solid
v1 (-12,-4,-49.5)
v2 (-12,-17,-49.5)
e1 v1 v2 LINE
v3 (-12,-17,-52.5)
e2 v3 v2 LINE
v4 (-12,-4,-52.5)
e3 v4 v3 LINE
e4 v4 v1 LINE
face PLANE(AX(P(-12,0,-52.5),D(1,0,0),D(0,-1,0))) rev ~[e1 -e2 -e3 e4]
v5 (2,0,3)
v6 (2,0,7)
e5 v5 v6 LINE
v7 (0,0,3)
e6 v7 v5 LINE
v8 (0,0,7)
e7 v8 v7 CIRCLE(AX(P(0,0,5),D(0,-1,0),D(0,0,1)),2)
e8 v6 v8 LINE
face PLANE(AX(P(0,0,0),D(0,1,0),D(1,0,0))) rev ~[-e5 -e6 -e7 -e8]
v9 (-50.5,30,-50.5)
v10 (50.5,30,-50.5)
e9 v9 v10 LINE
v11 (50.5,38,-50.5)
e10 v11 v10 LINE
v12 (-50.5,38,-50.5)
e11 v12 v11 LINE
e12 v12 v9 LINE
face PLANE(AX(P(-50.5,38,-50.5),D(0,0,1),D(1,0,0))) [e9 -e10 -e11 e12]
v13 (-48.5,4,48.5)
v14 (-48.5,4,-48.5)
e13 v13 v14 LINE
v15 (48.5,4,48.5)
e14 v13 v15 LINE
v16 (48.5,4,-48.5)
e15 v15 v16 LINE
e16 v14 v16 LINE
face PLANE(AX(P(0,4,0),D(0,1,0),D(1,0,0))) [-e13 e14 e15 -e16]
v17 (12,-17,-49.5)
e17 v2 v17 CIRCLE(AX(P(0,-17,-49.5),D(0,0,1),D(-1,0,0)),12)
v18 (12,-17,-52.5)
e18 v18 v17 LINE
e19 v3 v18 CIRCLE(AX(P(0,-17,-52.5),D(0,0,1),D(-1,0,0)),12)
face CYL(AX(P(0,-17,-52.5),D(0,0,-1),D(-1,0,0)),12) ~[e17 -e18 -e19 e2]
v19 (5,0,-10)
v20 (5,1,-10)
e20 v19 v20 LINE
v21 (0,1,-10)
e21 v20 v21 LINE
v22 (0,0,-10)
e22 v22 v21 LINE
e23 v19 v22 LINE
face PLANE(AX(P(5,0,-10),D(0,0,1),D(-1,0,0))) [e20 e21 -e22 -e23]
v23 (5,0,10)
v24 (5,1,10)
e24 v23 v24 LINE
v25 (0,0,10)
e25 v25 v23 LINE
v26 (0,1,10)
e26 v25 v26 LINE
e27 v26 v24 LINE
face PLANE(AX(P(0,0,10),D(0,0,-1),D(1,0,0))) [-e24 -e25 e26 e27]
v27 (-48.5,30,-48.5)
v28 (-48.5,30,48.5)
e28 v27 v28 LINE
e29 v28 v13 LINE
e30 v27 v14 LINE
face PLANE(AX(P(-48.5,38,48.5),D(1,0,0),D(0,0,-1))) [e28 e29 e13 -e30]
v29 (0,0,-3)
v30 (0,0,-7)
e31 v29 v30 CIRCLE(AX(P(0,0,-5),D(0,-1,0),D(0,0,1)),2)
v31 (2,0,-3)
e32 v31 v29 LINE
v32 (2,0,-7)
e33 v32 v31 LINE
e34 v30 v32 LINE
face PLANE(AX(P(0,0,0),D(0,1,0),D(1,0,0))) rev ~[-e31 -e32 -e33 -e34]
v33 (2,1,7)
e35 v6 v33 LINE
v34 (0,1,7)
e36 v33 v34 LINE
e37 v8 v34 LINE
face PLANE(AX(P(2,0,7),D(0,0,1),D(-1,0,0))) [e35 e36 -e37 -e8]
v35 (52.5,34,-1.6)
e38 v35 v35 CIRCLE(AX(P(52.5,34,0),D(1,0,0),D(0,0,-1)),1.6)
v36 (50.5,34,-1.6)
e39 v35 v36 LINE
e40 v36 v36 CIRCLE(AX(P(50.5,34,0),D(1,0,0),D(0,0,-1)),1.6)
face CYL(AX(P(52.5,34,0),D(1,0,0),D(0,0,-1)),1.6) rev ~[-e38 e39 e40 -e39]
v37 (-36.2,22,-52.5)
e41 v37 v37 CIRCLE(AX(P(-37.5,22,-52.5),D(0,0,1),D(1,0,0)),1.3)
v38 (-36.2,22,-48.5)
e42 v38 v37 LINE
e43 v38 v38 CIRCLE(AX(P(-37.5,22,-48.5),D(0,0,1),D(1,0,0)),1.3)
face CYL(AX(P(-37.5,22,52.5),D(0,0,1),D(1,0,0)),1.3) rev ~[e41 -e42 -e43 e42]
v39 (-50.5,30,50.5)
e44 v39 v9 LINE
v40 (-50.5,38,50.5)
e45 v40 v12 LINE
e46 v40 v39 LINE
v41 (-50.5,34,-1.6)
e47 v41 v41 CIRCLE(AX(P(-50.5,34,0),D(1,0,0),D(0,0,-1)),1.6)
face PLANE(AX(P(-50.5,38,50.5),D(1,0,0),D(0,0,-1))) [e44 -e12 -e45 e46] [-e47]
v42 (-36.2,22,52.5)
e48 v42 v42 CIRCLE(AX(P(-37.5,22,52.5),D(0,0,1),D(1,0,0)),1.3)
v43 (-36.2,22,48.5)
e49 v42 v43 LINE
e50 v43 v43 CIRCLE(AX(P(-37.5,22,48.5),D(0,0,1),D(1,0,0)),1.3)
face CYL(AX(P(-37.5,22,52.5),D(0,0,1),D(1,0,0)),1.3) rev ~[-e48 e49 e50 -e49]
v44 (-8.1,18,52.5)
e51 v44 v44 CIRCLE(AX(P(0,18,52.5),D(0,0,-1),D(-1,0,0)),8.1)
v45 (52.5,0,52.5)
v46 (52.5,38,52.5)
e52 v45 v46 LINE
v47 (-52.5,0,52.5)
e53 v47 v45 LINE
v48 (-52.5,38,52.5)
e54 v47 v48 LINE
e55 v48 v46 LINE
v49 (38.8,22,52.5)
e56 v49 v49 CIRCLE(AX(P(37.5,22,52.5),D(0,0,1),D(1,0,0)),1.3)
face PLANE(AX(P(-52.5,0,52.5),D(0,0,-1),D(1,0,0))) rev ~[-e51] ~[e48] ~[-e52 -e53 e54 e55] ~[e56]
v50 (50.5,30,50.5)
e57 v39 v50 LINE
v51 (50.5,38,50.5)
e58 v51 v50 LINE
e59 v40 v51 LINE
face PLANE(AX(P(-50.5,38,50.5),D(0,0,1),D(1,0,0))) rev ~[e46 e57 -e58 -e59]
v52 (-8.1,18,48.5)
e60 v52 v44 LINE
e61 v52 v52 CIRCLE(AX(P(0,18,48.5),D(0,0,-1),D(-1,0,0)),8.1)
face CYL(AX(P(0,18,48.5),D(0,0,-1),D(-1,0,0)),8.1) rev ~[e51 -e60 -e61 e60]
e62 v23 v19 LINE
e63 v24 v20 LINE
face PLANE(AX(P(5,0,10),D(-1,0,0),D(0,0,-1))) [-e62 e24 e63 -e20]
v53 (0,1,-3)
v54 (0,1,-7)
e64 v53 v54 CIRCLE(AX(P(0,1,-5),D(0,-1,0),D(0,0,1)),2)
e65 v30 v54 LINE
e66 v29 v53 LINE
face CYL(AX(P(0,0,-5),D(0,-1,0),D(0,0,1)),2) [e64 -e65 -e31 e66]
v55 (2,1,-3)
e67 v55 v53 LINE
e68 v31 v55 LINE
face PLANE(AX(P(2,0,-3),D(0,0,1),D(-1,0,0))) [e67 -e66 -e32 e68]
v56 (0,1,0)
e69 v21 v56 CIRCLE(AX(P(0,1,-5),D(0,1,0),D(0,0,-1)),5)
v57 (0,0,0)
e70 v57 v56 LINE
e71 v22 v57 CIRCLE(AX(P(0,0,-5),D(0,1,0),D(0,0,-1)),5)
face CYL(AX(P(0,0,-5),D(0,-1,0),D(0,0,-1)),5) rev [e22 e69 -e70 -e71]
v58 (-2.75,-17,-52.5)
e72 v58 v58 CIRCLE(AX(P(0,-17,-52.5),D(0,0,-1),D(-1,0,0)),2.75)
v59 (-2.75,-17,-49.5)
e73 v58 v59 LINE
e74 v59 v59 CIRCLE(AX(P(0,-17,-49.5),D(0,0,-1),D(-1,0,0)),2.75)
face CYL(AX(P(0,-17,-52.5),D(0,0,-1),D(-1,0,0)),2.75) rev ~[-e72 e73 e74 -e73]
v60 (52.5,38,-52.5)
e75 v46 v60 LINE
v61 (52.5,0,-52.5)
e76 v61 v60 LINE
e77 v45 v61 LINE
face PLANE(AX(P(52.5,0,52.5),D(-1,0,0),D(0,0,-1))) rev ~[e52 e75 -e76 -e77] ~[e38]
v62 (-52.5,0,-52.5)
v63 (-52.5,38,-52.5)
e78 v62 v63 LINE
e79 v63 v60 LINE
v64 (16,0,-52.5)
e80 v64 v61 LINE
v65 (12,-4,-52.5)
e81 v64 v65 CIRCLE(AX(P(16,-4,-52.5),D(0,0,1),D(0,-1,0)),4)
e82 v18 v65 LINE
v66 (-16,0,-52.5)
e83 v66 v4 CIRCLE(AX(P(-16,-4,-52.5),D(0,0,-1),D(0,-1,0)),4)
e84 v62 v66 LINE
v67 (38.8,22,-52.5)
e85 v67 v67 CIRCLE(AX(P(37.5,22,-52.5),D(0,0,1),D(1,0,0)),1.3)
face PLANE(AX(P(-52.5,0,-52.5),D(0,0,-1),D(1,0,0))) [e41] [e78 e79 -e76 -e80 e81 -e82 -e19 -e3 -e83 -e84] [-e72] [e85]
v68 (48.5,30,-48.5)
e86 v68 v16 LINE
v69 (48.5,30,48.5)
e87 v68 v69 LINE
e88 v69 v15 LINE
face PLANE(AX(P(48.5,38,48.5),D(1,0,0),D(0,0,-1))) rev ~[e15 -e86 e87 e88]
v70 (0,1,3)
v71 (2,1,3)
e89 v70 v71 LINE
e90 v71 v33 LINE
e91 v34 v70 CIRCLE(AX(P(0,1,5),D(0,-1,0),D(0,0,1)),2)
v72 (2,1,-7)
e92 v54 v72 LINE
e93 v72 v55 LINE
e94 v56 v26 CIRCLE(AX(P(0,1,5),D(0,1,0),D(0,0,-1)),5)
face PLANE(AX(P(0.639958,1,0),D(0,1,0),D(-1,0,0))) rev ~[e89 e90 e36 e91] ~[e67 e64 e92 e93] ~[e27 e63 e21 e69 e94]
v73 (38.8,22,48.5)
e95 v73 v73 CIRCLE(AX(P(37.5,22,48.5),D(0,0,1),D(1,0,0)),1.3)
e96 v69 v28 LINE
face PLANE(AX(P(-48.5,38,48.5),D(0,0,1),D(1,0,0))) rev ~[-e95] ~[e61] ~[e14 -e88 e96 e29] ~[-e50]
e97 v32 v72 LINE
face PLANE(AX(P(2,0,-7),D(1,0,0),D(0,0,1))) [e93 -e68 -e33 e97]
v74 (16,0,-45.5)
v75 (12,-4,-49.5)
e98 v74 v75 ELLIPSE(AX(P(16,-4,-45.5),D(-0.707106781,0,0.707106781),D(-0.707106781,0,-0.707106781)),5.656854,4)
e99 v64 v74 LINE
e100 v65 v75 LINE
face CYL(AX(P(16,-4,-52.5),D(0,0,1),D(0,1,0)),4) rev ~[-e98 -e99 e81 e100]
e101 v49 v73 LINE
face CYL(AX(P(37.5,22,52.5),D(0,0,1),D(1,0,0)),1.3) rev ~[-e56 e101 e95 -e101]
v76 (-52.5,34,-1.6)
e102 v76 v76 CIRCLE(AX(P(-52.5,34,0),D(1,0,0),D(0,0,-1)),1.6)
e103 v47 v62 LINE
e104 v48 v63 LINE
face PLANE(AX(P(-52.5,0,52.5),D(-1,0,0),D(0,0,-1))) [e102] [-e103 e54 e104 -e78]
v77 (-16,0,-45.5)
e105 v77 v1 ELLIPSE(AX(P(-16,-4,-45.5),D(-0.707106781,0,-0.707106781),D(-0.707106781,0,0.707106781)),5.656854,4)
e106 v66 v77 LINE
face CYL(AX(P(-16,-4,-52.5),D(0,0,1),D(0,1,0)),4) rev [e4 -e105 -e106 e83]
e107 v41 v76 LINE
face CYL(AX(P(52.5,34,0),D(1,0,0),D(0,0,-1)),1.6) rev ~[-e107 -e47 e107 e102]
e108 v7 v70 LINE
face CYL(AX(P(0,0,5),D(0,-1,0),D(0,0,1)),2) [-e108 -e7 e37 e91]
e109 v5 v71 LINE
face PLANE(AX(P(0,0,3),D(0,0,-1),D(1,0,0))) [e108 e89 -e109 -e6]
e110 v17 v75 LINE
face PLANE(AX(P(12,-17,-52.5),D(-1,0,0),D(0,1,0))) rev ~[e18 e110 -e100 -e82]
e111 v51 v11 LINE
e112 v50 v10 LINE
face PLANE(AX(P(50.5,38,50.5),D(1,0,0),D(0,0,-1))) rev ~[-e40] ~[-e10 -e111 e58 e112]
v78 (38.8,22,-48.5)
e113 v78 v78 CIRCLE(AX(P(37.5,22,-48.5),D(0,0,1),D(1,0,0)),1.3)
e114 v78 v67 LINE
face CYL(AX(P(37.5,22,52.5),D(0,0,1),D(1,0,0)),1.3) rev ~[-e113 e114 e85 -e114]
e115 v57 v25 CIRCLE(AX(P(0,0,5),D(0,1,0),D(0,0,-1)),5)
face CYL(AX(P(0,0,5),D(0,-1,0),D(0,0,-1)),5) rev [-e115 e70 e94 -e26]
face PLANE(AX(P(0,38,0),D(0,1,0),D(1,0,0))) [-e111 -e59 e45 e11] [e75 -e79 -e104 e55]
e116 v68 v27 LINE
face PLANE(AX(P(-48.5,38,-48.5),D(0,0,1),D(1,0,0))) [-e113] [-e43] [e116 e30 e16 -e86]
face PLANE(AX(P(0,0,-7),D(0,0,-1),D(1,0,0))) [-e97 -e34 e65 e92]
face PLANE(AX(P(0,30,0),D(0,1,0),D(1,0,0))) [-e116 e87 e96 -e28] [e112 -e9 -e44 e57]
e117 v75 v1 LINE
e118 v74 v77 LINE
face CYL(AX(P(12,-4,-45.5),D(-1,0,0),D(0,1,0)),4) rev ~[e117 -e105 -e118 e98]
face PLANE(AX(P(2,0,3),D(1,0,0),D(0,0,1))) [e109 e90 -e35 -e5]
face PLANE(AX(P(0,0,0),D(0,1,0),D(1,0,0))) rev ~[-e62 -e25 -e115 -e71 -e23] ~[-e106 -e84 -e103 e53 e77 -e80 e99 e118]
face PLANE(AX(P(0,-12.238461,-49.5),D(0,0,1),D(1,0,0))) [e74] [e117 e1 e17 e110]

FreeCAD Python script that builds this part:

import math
import FreeCAD as App
import Part
import Sketcher
from FreeCAD import Vector
Q = App.Units.Quantity


def edges_at(feature, points):
    """Names of the edges that pass closest to the given points."""
    edges = feature.Shape.Edges
    near = lambda p: min(range(len(edges)), key=lambda i: edges[i].distToShape(Part.Vertex(*p))[0])
    return sorted({f"Edge{near(p) + 1}" for p in points})


def add_polygon(sketch, points):
    """Adds a closed chain of lines whose ends are joined by coincident constraints."""
    first, n = sketch.GeometryCount, len(points)
    for a, b in zip(points, points[1:] + points[:1]):
        sketch.addGeometry(Part.LineSegment(App.Vector(*a, 0), App.Vector(*b, 0)), False)
    for i in range(n):
        sketch.addConstraint(Sketcher.Constraint("Coincident", first + i, 2, first + (i + 1) % n, 1))

doc = App.newDocument("Part")
body = doc.addObject("PartDesign::Body", "Body")

# Sketch on XZ plane
sketch1 = body.newObject("Sketcher::SketchObject", "Sketch")
sketch1.AttachmentSupport = (doc.getObject("XZ_Plane"), [""])
sketch1.MapMode = "FlatFace"
add_polygon(sketch1, [(-52.5, -52.5), (-52.5, 52.5), (52.5, 52.5), (52.5, -52.5)])  # lines 0-3
sketch1.addConstraint([
    Sketcher.Constraint("Vertical", 0),
    Sketcher.Constraint("Horizontal", 1),
    Sketcher.Constraint("Vertical", 2),
    Sketcher.Constraint("Horizontal", 3),
    Sketcher.Constraint("Symmetric", 0, 2, 2, 2, -1, 1),
    Sketcher.Constraint("Equal", 3, 0),
    Sketcher.Constraint("DistanceX", 1, 1, 1, 2, Q("105 mm")),
])
pad1 = body.newObject("PartDesign::Pad", "Pad")
pad1.Profile = sketch1
pad1.Length = 38
pad1.Reversed = True

# Sketch on XZ plane
sketch2 = body.newObject("Sketcher::SketchObject", "Sketch001")
sketch2.AttachmentSupport = (doc.getObject("XZ_Plane"), [""])
sketch2.MapMode = "FlatFace"
sketch2.AttachmentOffset = App.Placement(Vector(0, 0, -38), App.Rotation())
add_polygon(sketch2, [(-48.5, -48.5), (-48.5, 48.5), (48.5, 48.5), (48.5, -48.5)])  # lines 0-3
sketch2.addConstraint([
    Sketcher.Constraint("Vertical", 0),
    Sketcher.Constraint("Horizontal", 1),
    Sketcher.Constraint("Vertical", 2),
    Sketcher.Constraint("Horizontal", 3),
    Sketcher.Constraint("Symmetric", 0, 2, 2, 2, -1, 1),
    Sketcher.Constraint("Equal", 3, 0),
    Sketcher.Constraint("DistanceX", 1, 1, 1, 2, Q("97 mm")),
])
pocket1 = body.newObject("PartDesign::Pocket", "Pocket")
pocket1.Profile = sketch2
pocket1.Length = 34
pocket1.Reversed = True

# Sketch on XZ plane
sketch3 = body.newObject("Sketcher::SketchObject", "Sketch002")
sketch3.AttachmentSupport = (doc.getObject("XZ_Plane"), [""])
sketch3.MapMode = "FlatFace"
sketch3.AttachmentOffset = App.Placement(Vector(0, 0, -38), App.Rotation())
add_polygon(sketch3, [(-50.5, -50.5), (-50.5, 50.5), (50.5, 50.5), (50.5, -50.5)])  # lines 0-3
sketch3.addConstraint([
    Sketcher.Constraint("Vertical", 0),
    Sketcher.Constraint("Horizontal", 1),
    Sketcher.Constraint("Vertical", 2),
    Sketcher.Constraint("Horizontal", 3),
    Sketcher.Constraint("Symmetric", 0, 2, 2, 2, -1, 1),
    Sketcher.Constraint("Equal", 3, 0),
    Sketcher.Constraint("DistanceX", 1, 1, 1, 2, Q("101 mm")),
])
pocket2 = body.newObject("PartDesign::Pocket", "Pocket001")
pocket2.Profile = sketch3
pocket2.Length = 8
pocket2.Reversed = True

# Sketch on YZ plane
sketch4 = body.newObject("Sketcher::SketchObject", "Sketch003")
sketch4.AttachmentSupport = (doc.getObject("YZ_Plane"), [""])
sketch4.MapMode = "FlatFace"
sketch4.AttachmentOffset = App.Placement(Vector(0, 0, 52.5), App.Rotation())
sketch4.addGeometry(Part.Circle(Vector(34, 0, 0), Vector(0, 0, 1), 1.6), False)
sketch4.addConstraint([
    Sketcher.Constraint("PointOnObject", 0, 3, -1),
    Sketcher.Constraint("Diameter", 0, Q("3.2 mm")),
    Sketcher.Constraint("DistanceX", -1, 1, 0, 3, Q("34 mm")),
])
pocket3 = body.newObject("PartDesign::Pocket", "Pocket002")
pocket3.Profile = sketch4
pocket3.Type = "ThroughAll"

# Sketch on XY plane
sketch5 = body.newObject("Sketcher::SketchObject", "Sketch004")
sketch5.AttachmentSupport = (doc.getObject("XY_Plane"), [""])
sketch5.MapMode = "FlatFace"
sketch5.AttachmentOffset = App.Placement(Vector(0, 0, -52.5), App.Rotation())
sketch5.addGeometry([
    Part.LineSegment(Vector(-12, 0, 0), Vector(12, 0, 0)),  # 0
    Part.LineSegment(Vector(12, 0, 0), Vector(12, -17, 0)),  # 1
    Part.ArcOfCircle(Part.Circle(Vector(0, -17, 0), Vector(0, 0, 1), 12), math.radians(180), math.radians(360)),  # 2
    Part.LineSegment(Vector(-12, -17, 0), Vector(-12, 0, 0)),  # 3
    Part.Circle(Vector(0, -17, 0), Vector(0, 0, 1), 2.75),  # 4
], False)
sketch5.addConstraint([
    Sketcher.Constraint("Coincident", 0, 2, 1, 1),
    Sketcher.Constraint("Tangent", 1, 2, 2, 2),
    Sketcher.Constraint("Tangent", 2, 1, 3, 1),
    Sketcher.Constraint("Coincident", 3, 2, 0, 1),
    Sketcher.Constraint("Horizontal", 0),
    Sketcher.Constraint("Vertical", 1),
    Sketcher.Constraint("Vertical", 3),
    Sketcher.Constraint("Coincident", 4, 3, 2, 3),
    Sketcher.Constraint("Symmetric", 0, 2, 3, 2, -1, 1),
    Sketcher.Constraint("Radius", 2, Q("12 mm")),
    Sketcher.Constraint("Diameter", 4, Q("5.5 mm")),
    Sketcher.Constraint("DistanceY", 1, 2, 1, 1, Q("17 mm")),
])
pad2 = body.newObject("PartDesign::Pad", "Pad001")
pad2.Profile = sketch5
pad2.Length = 3
doc.recompute()

fillet = body.newObject("PartDesign::Fillet", "Fillet")
fillet.Base = (pad2, edges_at(pad2, [(0, 0, -49.5), (12, 0, -51), (-12, 0, -51)]))
fillet.Radius = 4

# Sketch on XY plane
sketch6 = body.newObject("Sketcher::SketchObject", "Sketch005")
sketch6.AttachmentSupport = (doc.getObject("XY_Plane"), [""])
sketch6.MapMode = "FlatFace"
sketch6.AttachmentOffset = App.Placement(Vector(0, 0, 48.5), App.Rotation())
sketch6.addGeometry(Part.Circle(Vector(0, 18, 0), Vector(0, 0, 1), 8.1), False)
sketch6.addConstraint([
    Sketcher.Constraint("PointOnObject", 0, 3, -2),
    Sketcher.Constraint("Diameter", 0, Q("16.2 mm")),
    Sketcher.Constraint("DistanceY", -1, 1, 0, 3, Q("18 mm")),
])
pocket4 = body.newObject("PartDesign::Pocket", "Pocket003")
pocket4.Profile = sketch6
pocket4.Type = "UpToFirst"
pocket4.Reversed = True

# Sketch on XZ plane
sketch7 = body.newObject("Sketcher::SketchObject", "Sketch006")
sketch7.AttachmentSupport = (doc.getObject("XZ_Plane"), [""])
sketch7.MapMode = "FlatFace"
sketch7.addGeometry([
    Part.LineSegment(Vector(0, -10, 0), Vector(5, -10, 0)),  # 0
    Part.LineSegment(Vector(5, -10, 0), Vector(5, 10, 0)),  # 1
    Part.LineSegment(Vector(5, 10, 0), Vector(0, 10, 0)),  # 2
    Part.ArcOfCircle(Part.Circle(Vector(0, 5, 0), Vector(0, 0, 1), 5), math.radians(90), math.radians(270)),  # 3
    Part.ArcOfCircle(Part.Circle(Vector(0, -5, 0), Vector(0, 0, 1), 5), math.radians(90), math.radians(270)),  # 4
    Part.ArcOfCircle(Part.Circle(Vector(0, -5, 0), Vector(0, 0, 1), 2), math.radians(90), math.radians(270)),  # 5
    Part.LineSegment(Vector(0, -3, 0), Vector(2, -3, 0)),  # 6
    Part.LineSegment(Vector(2, -3, 0), Vector(2, -7, 0)),  # 7
    Part.LineSegment(Vector(2, -7, 0), Vector(0, -7, 0)),  # 8
    Part.ArcOfCircle(Part.Circle(Vector(0, 5, 0), Vector(0, 0, 1), 2), math.radians(90), math.radians(270)),  # 9
    Part.LineSegment(Vector(0, 7, 0), Vector(2, 7, 0)),  # 10
    Part.LineSegment(Vector(2, 7, 0), Vector(2, 3, 0)),  # 11
    Part.LineSegment(Vector(2, 3, 0), Vector(0, 3, 0)),  # 12
], False)
sketch7.addConstraint([
    Sketcher.Constraint("Coincident", 0, 2, 1, 1),
    Sketcher.Constraint("Coincident", 1, 2, 2, 1),
    Sketcher.Constraint("Tangent", 2, 2, 3, 1),
    Sketcher.Constraint("Tangent", 3, 2, 4, 1),
    Sketcher.Constraint("Tangent", 4, 2, 0, 1),
    Sketcher.Constraint("Tangent", 5, 1, 6, 1),
    Sketcher.Constraint("Coincident", 6, 2, 7, 1),
    Sketcher.Constraint("Coincident", 7, 2, 8, 1),
    Sketcher.Constraint("Tangent", 8, 2, 5, 2),
    Sketcher.Constraint("Tangent", 9, 1, 10, 1),
    Sketcher.Constraint("Coincident", 10, 2, 11, 1),
    Sketcher.Constraint("Coincident", 11, 2, 12, 1),
    Sketcher.Constraint("Tangent", 12, 2, 9, 2),
    Sketcher.Constraint("Horizontal", 0),
    Sketcher.Constraint("Vertical", 1),
    Sketcher.Constraint("Horizontal", 2),
    Sketcher.Constraint("Horizontal", 6),
    Sketcher.Constraint("Vertical", 7),
    Sketcher.Constraint("Horizontal", 8),
    Sketcher.Constraint("Horizontal", 10),
    Sketcher.Constraint("Vertical", 11),
    Sketcher.Constraint("Horizontal", 12),
    Sketcher.Constraint("Coincident", 3, 2, -1, 1),
    Sketcher.Constraint("Coincident", 5, 3, 4, 3),
    Sketcher.Constraint("Coincident", 9, 3, 3, 3),
    Sketcher.Constraint("Equal", 3, 4),
    Sketcher.Constraint("Equal", 5, 9),
    Sketcher.Constraint("PointOnObject", 3, 3, -2),
    Sketcher.Constraint("Vertical", 7, 2, 10, 2),
    Sketcher.Constraint("Radius", 3, Q("5 mm")),
    Sketcher.Constraint("Radius", 5, Q("2 mm")),
    Sketcher.Constraint("DistanceX", 0, 1, 0, 2, Q("5 mm")),
    Sketcher.Constraint("DistanceX", 6, 1, 6, 2, Q("2 mm")),
])
pocket5 = body.newObject("PartDesign::Pocket", "Pocket004")
pocket5.Profile = sketch7
pocket5.Length = 1

# Sketch on XY plane
sketch8 = body.newObject("Sketcher::SketchObject", "Sketch007")
sketch8.AttachmentSupport = (doc.getObject("XY_Plane"), [""])
sketch8.MapMode = "FlatFace"
sketch8.AttachmentOffset = App.Placement(Vector(0, 0, 52.5), App.Rotation())
sketch8.addGeometry([
    Part.Circle(Vector(-37.5, 22, 0), Vector(0, 0, 1), 1.3),
    Part.Circle(Vector(37.5, 22, 0), Vector(0, 0, 1), 1.3),
], False)
sketch8.addConstraint([
    Sketcher.Constraint("Equal", 0, 1),
    Sketcher.Constraint("Symmetric", 0, 3, 1, 3, -2),
    Sketcher.Constraint("Diameter", 0, Q("2.6 mm")),
    Sketcher.Constraint("DistanceY", -1, 1, 0, 3, Q("22 mm")),
    Sketcher.Constraint("DistanceX", 0, 3, 1, 3, Q("75 mm")),
])
pocket6 = body.newObject("PartDesign::Pocket", "Pocket005")
pocket6.Profile = sketch8
pocket6.Type = "ThroughAll"

doc.recompute()
